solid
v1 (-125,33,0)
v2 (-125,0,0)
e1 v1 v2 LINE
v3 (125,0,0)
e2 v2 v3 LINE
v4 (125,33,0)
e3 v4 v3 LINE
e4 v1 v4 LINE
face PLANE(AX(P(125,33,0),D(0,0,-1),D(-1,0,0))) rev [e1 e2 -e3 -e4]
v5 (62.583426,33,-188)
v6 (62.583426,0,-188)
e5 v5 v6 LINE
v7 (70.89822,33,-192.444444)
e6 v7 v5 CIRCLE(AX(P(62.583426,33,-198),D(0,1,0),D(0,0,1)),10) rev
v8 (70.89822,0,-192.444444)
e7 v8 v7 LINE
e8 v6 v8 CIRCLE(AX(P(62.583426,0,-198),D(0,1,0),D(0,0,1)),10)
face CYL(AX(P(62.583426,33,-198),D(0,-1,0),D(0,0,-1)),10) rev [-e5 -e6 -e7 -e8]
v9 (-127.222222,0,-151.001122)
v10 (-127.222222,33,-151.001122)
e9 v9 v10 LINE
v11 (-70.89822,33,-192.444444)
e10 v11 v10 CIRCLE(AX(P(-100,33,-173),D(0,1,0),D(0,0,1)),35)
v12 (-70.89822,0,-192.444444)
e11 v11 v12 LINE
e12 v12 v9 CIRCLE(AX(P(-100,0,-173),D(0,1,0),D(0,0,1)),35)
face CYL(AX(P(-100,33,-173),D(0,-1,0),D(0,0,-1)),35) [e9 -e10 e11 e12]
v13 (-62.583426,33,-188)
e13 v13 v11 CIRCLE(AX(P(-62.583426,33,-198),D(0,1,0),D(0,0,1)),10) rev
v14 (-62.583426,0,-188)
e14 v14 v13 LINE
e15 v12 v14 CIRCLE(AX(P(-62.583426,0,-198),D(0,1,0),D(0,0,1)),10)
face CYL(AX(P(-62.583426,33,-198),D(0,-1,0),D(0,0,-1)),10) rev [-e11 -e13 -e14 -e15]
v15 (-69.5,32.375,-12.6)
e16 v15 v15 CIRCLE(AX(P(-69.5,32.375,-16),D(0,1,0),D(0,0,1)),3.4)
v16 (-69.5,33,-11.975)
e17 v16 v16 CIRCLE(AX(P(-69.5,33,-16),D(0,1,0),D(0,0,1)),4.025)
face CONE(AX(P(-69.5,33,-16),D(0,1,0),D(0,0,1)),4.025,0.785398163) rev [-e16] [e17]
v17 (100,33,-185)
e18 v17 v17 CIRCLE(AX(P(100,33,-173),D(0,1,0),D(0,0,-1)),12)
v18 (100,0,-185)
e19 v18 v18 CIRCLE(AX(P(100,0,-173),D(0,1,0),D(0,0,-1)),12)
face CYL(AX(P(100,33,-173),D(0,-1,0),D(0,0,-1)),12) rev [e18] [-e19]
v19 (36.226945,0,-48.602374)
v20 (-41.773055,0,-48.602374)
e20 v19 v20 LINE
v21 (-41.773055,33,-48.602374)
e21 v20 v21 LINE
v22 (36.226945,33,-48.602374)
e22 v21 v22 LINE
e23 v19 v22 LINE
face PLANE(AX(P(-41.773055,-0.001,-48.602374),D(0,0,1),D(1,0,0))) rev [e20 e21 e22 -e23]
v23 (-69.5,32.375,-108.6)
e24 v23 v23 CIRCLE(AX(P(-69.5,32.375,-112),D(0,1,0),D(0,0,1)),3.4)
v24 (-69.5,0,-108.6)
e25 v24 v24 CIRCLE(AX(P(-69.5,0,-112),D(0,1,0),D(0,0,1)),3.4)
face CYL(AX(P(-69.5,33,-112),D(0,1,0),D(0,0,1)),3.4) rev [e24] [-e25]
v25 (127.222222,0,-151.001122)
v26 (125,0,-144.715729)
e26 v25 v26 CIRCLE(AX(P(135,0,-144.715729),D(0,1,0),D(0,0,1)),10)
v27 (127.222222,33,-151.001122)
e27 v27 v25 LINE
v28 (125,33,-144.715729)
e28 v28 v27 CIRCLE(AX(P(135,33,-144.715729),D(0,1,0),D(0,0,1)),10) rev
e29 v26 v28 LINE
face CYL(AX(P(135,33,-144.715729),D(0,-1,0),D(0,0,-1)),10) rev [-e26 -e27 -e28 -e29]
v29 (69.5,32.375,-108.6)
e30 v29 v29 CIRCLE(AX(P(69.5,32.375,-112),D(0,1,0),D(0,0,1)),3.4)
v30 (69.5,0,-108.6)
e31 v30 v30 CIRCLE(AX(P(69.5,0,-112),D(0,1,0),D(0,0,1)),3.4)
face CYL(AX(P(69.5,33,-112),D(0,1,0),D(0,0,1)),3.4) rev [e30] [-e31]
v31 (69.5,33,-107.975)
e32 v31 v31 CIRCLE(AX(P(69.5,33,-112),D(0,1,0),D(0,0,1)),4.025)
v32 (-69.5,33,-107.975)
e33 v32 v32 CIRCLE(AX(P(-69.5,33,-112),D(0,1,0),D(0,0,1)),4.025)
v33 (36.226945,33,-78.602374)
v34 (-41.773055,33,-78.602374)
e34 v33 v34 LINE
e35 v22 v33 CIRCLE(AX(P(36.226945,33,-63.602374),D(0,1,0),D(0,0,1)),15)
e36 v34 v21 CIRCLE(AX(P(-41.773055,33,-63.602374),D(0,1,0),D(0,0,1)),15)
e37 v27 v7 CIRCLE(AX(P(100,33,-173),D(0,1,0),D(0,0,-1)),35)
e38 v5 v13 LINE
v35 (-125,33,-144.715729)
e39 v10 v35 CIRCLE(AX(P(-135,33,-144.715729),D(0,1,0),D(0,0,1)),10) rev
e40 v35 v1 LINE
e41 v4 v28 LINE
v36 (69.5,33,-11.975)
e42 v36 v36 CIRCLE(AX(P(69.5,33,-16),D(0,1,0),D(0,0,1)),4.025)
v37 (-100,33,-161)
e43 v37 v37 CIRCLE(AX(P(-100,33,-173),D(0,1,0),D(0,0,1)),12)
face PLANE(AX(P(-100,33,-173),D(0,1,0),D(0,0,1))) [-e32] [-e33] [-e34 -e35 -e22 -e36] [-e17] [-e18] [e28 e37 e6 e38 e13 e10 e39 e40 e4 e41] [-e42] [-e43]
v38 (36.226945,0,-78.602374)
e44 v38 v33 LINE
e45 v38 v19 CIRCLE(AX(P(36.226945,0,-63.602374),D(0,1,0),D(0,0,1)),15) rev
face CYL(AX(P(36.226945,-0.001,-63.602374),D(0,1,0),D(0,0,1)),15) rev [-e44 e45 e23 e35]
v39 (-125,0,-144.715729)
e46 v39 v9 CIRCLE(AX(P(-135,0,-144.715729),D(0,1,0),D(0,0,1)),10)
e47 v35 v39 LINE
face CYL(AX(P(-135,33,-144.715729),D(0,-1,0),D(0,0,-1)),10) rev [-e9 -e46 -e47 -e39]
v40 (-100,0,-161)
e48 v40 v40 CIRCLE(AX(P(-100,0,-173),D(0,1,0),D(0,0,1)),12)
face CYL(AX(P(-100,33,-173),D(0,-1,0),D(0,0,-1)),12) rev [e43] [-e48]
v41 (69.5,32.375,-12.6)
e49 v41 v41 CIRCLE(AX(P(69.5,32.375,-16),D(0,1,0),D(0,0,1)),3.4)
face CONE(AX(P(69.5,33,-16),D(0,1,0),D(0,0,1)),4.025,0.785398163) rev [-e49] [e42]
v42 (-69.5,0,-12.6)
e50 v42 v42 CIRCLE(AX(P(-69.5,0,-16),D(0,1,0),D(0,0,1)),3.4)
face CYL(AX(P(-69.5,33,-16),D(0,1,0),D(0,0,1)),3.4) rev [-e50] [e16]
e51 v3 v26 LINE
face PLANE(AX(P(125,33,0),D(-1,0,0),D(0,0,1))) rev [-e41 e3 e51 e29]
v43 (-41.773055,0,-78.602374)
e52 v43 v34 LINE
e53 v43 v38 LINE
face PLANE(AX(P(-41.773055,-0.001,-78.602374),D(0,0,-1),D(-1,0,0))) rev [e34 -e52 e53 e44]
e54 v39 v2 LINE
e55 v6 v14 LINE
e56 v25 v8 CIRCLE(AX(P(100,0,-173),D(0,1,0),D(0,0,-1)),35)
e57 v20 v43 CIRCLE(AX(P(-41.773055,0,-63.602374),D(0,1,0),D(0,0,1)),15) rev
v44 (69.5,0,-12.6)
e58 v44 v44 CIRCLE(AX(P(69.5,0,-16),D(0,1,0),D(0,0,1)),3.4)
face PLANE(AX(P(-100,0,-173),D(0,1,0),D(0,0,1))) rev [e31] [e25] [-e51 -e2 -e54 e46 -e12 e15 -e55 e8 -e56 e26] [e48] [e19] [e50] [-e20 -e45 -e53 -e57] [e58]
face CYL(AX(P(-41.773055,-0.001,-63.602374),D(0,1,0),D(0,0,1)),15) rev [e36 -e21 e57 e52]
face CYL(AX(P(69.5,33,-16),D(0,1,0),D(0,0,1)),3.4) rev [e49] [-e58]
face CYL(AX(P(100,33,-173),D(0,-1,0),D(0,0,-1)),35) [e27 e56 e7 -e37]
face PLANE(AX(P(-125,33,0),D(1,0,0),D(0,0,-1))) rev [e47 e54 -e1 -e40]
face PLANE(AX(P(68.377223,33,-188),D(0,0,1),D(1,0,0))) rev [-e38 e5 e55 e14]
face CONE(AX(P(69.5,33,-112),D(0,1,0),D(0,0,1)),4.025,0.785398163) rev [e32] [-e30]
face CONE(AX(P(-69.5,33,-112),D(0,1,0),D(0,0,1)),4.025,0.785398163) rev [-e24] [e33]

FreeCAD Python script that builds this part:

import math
import FreeCAD as App
import Part
import Sketcher


def edges_at(feature, points):
    """Names of the edges that pass closest to the given points."""
    edges = feature.Shape.Edges
    near = lambda p: min(range(len(edges)), key=lambda i: edges[i].distToShape(Part.Vertex(*p))[0])
    return sorted({f"Edge{near(p) + 1}" for p in points})

doc = App.newDocument("Part")
body = doc.addObject("PartDesign::Body", "Body")

# Sketch on XZ plane
sketch1 = body.newObject("Sketcher::SketchObject", "Sketch")
sketch1.AttachmentSupport = (doc.getObject("XZ_Plane"), [""])
sketch1.MapMode = "FlatFace"
sketch1.addGeometry(Part.LineSegment(App.Vector(-125, 0, 0), App.Vector(125, 0, 0)), False)
sketch1.addGeometry(Part.LineSegment(App.Vector(125, 0, 0), App.Vector(125, -149, 0)), False)
sketch1.addGeometry(Part.ArcOfCircle(Part.Circle(App.Vector(100, -173, 0), App.Vector(0, 0, 1), 35), math.radians(-155), math.radians(44)), False)
sketch1.addGeometry(Part.LineSegment(App.Vector(68, -188, 0), App.Vector(-68, -188, 0)), False)
sketch1.addGeometry(Part.ArcOfCircle(Part.Circle(App.Vector(-100, -173, 0), App.Vector(0, 0, 1), 35), math.radians(136), math.radians(335)), False)
sketch1.addGeometry(Part.LineSegment(App.Vector(-125, -149, 0), App.Vector(-125, 0, 0)), False)
sketch1.addGeometry(Part.Circle(App.Vector(100, -173, 0), App.Vector(0, 0, 1), 12), False)
sketch1.addGeometry(Part.Circle(App.Vector(-100, -173, 0), App.Vector(0, 0, 1), 12), False)
sketch1.addConstraint(Sketcher.Constraint("Coincident", 0, 2, 1, 1))
sketch1.addConstraint(Sketcher.Constraint("Coincident", 1, 2, 2, 2))
sketch1.addConstraint(Sketcher.Constraint("Coincident", 2, 1, 3, 1))
sketch1.addConstraint(Sketcher.Constraint("Coincident", 3, 2, 4, 2))
sketch1.addConstraint(Sketcher.Constraint("Coincident", 4, 1, 5, 1))
sketch1.addConstraint(Sketcher.Constraint("Coincident", 5, 2, 0, 1))
sketch1.addConstraint(Sketcher.Constraint("Horizontal", 0))
sketch1.addConstraint(Sketcher.Constraint("Vertical", 1))
sketch1.addConstraint(Sketcher.Constraint("Horizontal", 3))
sketch1.addConstraint(Sketcher.Constraint("Vertical", 5))
sketch1.addConstraint(Sketcher.Constraint("Coincident", 6, 3, 2, 3))
sketch1.addConstraint(Sketcher.Constraint("Coincident", 7, 3, 4, 3))
sketch1.addConstraint(Sketcher.Constraint("Equal", 2, 4))
sketch1.addConstraint(Sketcher.Constraint("Equal", 6, 7))
sketch1.addConstraint(Sketcher.Constraint("Symmetric", 0, 2, 5, 2, -1, 1))
sketch1.addConstraint(Sketcher.Constraint("Symmetric", 2, 3, 4, 3, -2))
sketch1.addConstraint(Sketcher.Constraint("Diameter", 6, 24.0))
sketch1.addConstraint(Sketcher.Constraint("Radius", 2, 35.0))
sketch1.addConstraint(Sketcher.Constraint("DistanceX", 0, 1, 0, 2, 250.0))
sketch1.addConstraint(Sketcher.Constraint("DistanceX", -1, 1, 2, 3, 100.0))
sketch1.addConstraint(Sketcher.Constraint("DistanceY", 2, 3, -1, 1, 173.0))
sketch1.addConstraint(Sketcher.Constraint("DistanceY", 2, 1, -1, 1, 188.0))
pad1 = body.newObject("PartDesign::Pad", "Pad")
pad1.Profile = sketch1
pad1.Length = 33
pad1.Reversed = True
doc.recompute()

fillet = body.newObject("PartDesign::Fillet", "Fillet")
fillet.Base = (pad1, edges_at(pad1, [
    (-125, 16.5, -148.505),
    (-68.377, 16.5, -188),
    (68.377, 16.5, -188),
    (125, 16.5, -148.505),
]))
fillet.Radius = 10

# Sketch on XZ plane
sketch2 = body.newObject("Sketcher::SketchObject", "Sketch001")
sketch2.AttachmentSupport = (doc.getObject("XZ_Plane"), [""])
sketch2.MapMode = "FlatFace"
sketch2.AttachmentOffset = App.Placement(App.Vector(0, 0, -33), App.Rotation())
sketch2.addGeometry(Part.Circle(App.Vector(-69.5, -112, 0), App.Vector(0, 0, 1), 3.4), False)
sketch2.addGeometry(Part.Circle(App.Vector(69.5, -112, 0), App.Vector(0, 0, 1), 3.4), False)
sketch2.addGeometry(Part.Circle(App.Vector(69.5, -16, 0), App.Vector(0, 0, 1), 3.4), False)
sketch2.addGeometry(Part.Circle(App.Vector(-69.5, -16, 0), App.Vector(0, 0, 1), 3.4), False)
sketch2.addConstraint(Sketcher.Constraint("Equal", 0, 1))
sketch2.addConstraint(Sketcher.Constraint("Equal", 1, 2))
sketch2.addConstraint(Sketcher.Constraint("Equal", 2, 3))
sketch2.addConstraint(Sketcher.Constraint("Symmetric", 0, 3, 1, 3, -2))
sketch2.addConstraint(Sketcher.Constraint("Symmetric", 2, 3, 3, 3, -2))
sketch2.addConstraint(Sketcher.Constraint("Vertical", 1, 3, 2, 3))
sketch2.addConstraint(Sketcher.Constraint("Diameter", 0, 6.8))
sketch2.addConstraint(Sketcher.Constraint("DistanceY", 0, 3, -1, 1, 112.0))
sketch2.addConstraint(Sketcher.Constraint("DistanceY", 2, 3, -1, 1, 16.0))
sketch2.addConstraint(Sketcher.Constraint("DistanceX", 0, 3, 1, 3, 139.0))
doc.recompute()
hole = body.newObject("PartDesign::Hole", "Hole")
hole.Profile = sketch2
hole.ThreadType = "None"
hole.Diameter = 6.8
hole.DepthType = "Dimension"
hole.Depth = 33
hole.DrillPoint = "Flat"
hole.HoleCutType = "Countersink"
hole.HoleCutDiameter = 8.05
hole.HoleCutCountersinkAngle = 90
hole.Reversed = True

# Sketch on XZ plane
sketch3 = body.newObject("Sketcher::SketchObject", "Sketch002")
sketch3.AttachmentSupport = (doc.getObject("XZ_Plane"), [""])
sketch3.MapMode = "FlatFace"
sketch3.AttachmentOffset = App.Placement(App.Vector(0, 0, -33), App.Rotation())
sketch3.addGeometry(Part.LineSegment(App.Vector(36, -79, 0), App.Vector(-42, -79, 0)), False)
sketch3.addGeometry(Part.ArcOfCircle(Part.Circle(App.Vector(-42, -64, 0), App.Vector(0, 0, 1), 15), math.radians(90), math.radians(270)), False)
sketch3.addGeometry(Part.LineSegment(App.Vector(-42, -49, 0), App.Vector(36, -49, 0)), False)
sketch3.addGeometry(Part.ArcOfCircle(Part.Circle(App.Vector(36, -64, 0), App.Vector(0, 0, 1), 15), math.radians(-90), math.radians(90)), False)
sketch3.addConstraint(Sketcher.Constraint("Tangent", 0, 2, 1, 2))
sketch3.addConstraint(Sketcher.Constraint("Tangent", 1, 1, 2, 1))
sketch3.addConstraint(Sketcher.Constraint("Tangent", 2, 2, 3, 2))
sketch3.addConstraint(Sketcher.Constraint("Tangent", 3, 1, 0, 1))
sketch3.addConstraint(Sketcher.Constraint("Horizontal", 0))
sketch3.addConstraint(Sketcher.Constraint("Horizontal", 2))
sketch3.addConstraint(Sketcher.Constraint("Radius", 1, 15.0))
sketch3.addConstraint(Sketcher.Constraint("DistanceX", 0, 2, 0, 1, 78.0))
sketch3.addConstraint(Sketcher.Constraint("DistanceX", 1, 3, -1, 1, 41.773055))
sketch3.addConstraint(Sketcher.Constraint("DistanceY", 1, 3, -1, 1, 63.602374))
pocket1 = body.newObject("PartDesign::Pocket", "Pocket")
pocket1.Profile = sketch3
pocket1.Type = "UpToFirst"
pocket1.Reversed = True

doc.recompute()
